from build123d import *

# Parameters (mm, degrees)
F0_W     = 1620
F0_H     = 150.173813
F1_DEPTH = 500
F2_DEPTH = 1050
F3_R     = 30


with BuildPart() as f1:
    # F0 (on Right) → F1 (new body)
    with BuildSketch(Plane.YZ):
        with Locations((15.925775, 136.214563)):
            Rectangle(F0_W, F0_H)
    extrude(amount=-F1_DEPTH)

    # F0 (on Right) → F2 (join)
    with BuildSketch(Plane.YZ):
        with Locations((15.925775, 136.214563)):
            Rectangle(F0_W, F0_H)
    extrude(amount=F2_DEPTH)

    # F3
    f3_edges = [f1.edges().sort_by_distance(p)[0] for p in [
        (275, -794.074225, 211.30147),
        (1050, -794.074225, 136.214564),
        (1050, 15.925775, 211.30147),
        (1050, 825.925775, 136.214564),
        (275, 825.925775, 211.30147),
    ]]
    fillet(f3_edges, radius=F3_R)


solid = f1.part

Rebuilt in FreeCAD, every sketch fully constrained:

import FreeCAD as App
import Part
import Sketcher

V = App.Vector


def edges_at(feature, points):
    """Names of the edges that pass closest to the given points."""
    edges = feature.Shape.Edges
    near = lambda p: min(range(len(edges)), key=lambda i: edges[i].distToShape(Part.Vertex(*p))[0])
    return sorted({f"Edge{near(p) + 1}" for p in points})

doc = App.newDocument("Part")
body = doc.addObject("PartDesign::Body", "Body")

sketch1 = body.newObject("Sketcher::SketchObject", "Sketch")
sketch1.AttachmentSupport = (doc.getObject("YZ_Plane"), [""])
sketch1.MapMode = "FlatFace"
sketch1.addGeometry([
    Part.LineSegment(V(-794, 211, 0), V(-794, 61, 0)),
    Part.LineSegment(V(-794, 61, 0), V(826, 61, 0)),
    Part.LineSegment(V(826, 61, 0), V(826, 211, 0)),
    Part.LineSegment(V(826, 211, 0), V(-794, 211, 0)),
], False)
sketch1.addConstraint([
    Sketcher.Constraint("Coincident", 0, 2, 1, 1),
    Sketcher.Constraint("Coincident", 1, 2, 2, 1),
    Sketcher.Constraint("Coincident", 2, 2, 3, 1),
    Sketcher.Constraint("Coincident", 3, 2, 0, 1),
    Sketcher.Constraint("Vertical", 0),
    Sketcher.Constraint("Horizontal", 1),
    Sketcher.Constraint("Vertical", 2),
    Sketcher.Constraint("Horizontal", 3),
    Sketcher.Constraint("DistanceX", 1, 1, 1, 2, 1620.0),
    Sketcher.Constraint("DistanceY", 0, 2, 0, 1, 150.173813),
    Sketcher.Constraint("DistanceY", -1, 1, 2, 2, 211.301469),
    Sketcher.Constraint("DistanceX", 0, 2, -1, 1, 794.074225),
])
pad1 = body.newObject("PartDesign::Pad", "Pad")
pad1.Profile = sketch1
pad1.Length = 500
pad1.Reversed = True

sketch2 = body.newObject("Sketcher::SketchObject", "Sketch001")
sketch2.AttachmentSupport = (doc.getObject("YZ_Plane"), [""])
sketch2.MapMode = "FlatFace"
sketch2.addGeometry([
    Part.LineSegment(V(-794, 211, 0), V(-794, 61, 0)),
    Part.LineSegment(V(-794, 61, 0), V(826, 61, 0)),
    Part.LineSegment(V(826, 61, 0), V(826, 211, 0)),
    Part.LineSegment(V(826, 211, 0), V(-794, 211, 0)),
], False)
sketch2.addConstraint([
    Sketcher.Constraint("Coincident", 0, 2, 1, 1),
    Sketcher.Constraint("Coincident", 1, 2, 2, 1),
    Sketcher.Constraint("Coincident", 2, 2, 3, 1),
    Sketcher.Constraint("Coincident", 3, 2, 0, 1),
    Sketcher.Constraint("Vertical", 0),
    Sketcher.Constraint("Horizontal", 1),
    Sketcher.Constraint("Vertical", 2),
    Sketcher.Constraint("Horizontal", 3),
    Sketcher.Constraint("DistanceX", 1, 1, 1, 2, 1620.0),
    Sketcher.Constraint("DistanceY", 0, 2, 0, 1, 150.173813),
    Sketcher.Constraint("DistanceY", -1, 1, 2, 2, 211.301469),
    Sketcher.Constraint("DistanceX", 0, 2, -1, 1, 794.074225),
])
pad2 = body.newObject("PartDesign::Pad", "Pad001")
pad2.Profile = sketch2
pad2.Length = 1050
doc.recompute()

fillet = body.newObject("PartDesign::Fillet", "Fillet")
fillet.Base = (pad2, edges_at(pad2, [
    (275, -794.074, 211.301),
    (1050, -794.074, 136.215),
    (1050, 15.926, 211.301),
    (1050, 825.926, 136.215),
    (275, 825.926, 211.301),
]))
fillet.Radius = 30

doc.recompute()
